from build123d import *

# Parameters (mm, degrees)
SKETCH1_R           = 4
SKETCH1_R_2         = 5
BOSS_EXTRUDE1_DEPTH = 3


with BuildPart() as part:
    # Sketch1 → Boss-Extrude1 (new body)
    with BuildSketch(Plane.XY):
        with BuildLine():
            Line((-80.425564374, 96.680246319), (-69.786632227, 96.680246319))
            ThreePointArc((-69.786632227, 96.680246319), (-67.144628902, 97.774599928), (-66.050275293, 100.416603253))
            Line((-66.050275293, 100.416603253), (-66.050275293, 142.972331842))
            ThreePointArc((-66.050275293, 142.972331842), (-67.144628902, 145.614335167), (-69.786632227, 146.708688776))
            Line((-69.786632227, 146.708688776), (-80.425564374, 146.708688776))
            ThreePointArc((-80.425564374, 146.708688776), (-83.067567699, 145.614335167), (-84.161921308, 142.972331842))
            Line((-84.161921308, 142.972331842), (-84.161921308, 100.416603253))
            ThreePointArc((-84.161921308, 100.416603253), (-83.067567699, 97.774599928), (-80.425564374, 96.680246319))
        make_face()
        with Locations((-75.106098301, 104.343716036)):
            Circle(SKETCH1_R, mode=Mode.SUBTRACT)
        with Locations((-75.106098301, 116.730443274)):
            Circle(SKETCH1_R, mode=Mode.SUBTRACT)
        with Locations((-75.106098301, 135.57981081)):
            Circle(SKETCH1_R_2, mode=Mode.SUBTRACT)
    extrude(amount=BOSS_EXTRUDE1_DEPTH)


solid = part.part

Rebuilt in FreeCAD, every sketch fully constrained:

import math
import FreeCAD as App
import Part
import Sketcher

V = App.Vector
Q = App.Units.Quantity

doc = App.newDocument("Part")
body = doc.addObject("PartDesign::Body", "Body")

# Sketch on XY plane
sketch1 = doc.addObject("Sketcher::SketchObject", "Sketch")
body.addObject(sketch1)
sketch1.AttachmentSupport = (doc.XY_Plane, [""])
sketch1.MapMode = "FlatFace"
sketch1.addGeometry([
    Part.LineSegment(V(-80.4, 96.7, 0), V(-69.8, 96.7, 0)),  # 0
    Part.ArcOfCircle(Part.Circle(V(-69.8, 100.4, 0), V(0, 0, 1), 3.7), math.radians(-90), math.radians(0)),  # 1
    Part.LineSegment(V(-66.1, 100.4, 0), V(-66.1, 143, 0)),  # 2
    Part.ArcOfCircle(Part.Circle(V(-69.8, 143, 0), V(0, 0, 1), 3.7), math.radians(0), math.radians(90)),  # 3
    Part.LineSegment(V(-69.8, 146.7, 0), V(-80.4, 146.7, 0)),  # 4
    Part.ArcOfCircle(Part.Circle(V(-80.4, 143, 0), V(0, 0, 1), 3.7), math.radians(90), math.radians(180)),  # 5
    Part.LineSegment(V(-84.2, 143, 0), V(-84.2, 100.4, 0)),  # 6
    Part.ArcOfCircle(Part.Circle(V(-80.4, 100.4, 0), V(0, 0, 1), 3.7), math.radians(180), math.radians(270)),  # 7
    Part.Circle(V(-75.1, 104.3, 0), V(0, 0, 1), 4),  # 8
    Part.Circle(V(-75.1, 116.7, 0), V(0, 0, 1), 4),  # 9
    Part.Circle(V(-75.1, 135.6, 0), V(0, 0, 1), 5),  # 10
], False)
sketch1.addConstraint([
    Sketcher.Constraint("Tangent", 0, 2, 1, 1),
    Sketcher.Constraint("Tangent", 1, 2, 2, 1),
    Sketcher.Constraint("Tangent", 2, 2, 3, 1),
    Sketcher.Constraint("Tangent", 3, 2, 4, 1),
    Sketcher.Constraint("Tangent", 4, 2, 5, 1),
    Sketcher.Constraint("Tangent", 5, 2, 6, 1),
    Sketcher.Constraint("Tangent", 6, 2, 7, 1),
    Sketcher.Constraint("Tangent", 7, 2, 0, 1),
    Sketcher.Constraint("Horizontal", 0),
    Sketcher.Constraint("Vertical", 2),
    Sketcher.Constraint("Horizontal", 4),
    Sketcher.Constraint("Vertical", 6),
    Sketcher.Constraint("Equal", 1, 3),
    Sketcher.Constraint("Equal", 3, 5),
    Sketcher.Constraint("Equal", 5, 7),
    Sketcher.Constraint("Equal", 8, 9),
    Sketcher.Constraint("Vertical", 8, 3, 9, 3),
    Sketcher.Constraint("Vertical", 9, 3, 10, 3),
    Sketcher.Constraint("Diameter", 8, Q("8 mm")),
    Sketcher.Constraint("Diameter", 10, Q("10 mm")),
    Sketcher.Constraint("Radius", 1, Q("3.736357 mm")),
    Sketcher.Constraint("DistanceY", 2, 1, 2, 2, Q("42.555729 mm")),
    Sketcher.Constraint("DistanceX", 8, 3, -1, 1, Q("75.106098 mm")),
    Sketcher.Constraint("DistanceX", 0, 1, 0, 2, Q("10.638932 mm")),
    Sketcher.Constraint("DistanceY", -1, 1, 3, 3, Q("142.972332 mm")),
    Sketcher.Constraint("DistanceY", -1, 1, 10, 3, Q("135.579811 mm")),
    Sketcher.Constraint("DistanceX", 5, 2, -1, 1, Q("84.161921 mm")),
    Sketcher.Constraint("DistanceY", 7, 3, 9, 3, Q("16.31384 mm")),
    Sketcher.Constraint("DistanceY", 0, 2, 8, 3, Q("7.66347 mm")),
])
pad1 = doc.addObject("PartDesign::Pad", "Pad")
body.addObject(pad1)
pad1.Profile = sketch1
pad1.Length = 3

doc.recompute()
